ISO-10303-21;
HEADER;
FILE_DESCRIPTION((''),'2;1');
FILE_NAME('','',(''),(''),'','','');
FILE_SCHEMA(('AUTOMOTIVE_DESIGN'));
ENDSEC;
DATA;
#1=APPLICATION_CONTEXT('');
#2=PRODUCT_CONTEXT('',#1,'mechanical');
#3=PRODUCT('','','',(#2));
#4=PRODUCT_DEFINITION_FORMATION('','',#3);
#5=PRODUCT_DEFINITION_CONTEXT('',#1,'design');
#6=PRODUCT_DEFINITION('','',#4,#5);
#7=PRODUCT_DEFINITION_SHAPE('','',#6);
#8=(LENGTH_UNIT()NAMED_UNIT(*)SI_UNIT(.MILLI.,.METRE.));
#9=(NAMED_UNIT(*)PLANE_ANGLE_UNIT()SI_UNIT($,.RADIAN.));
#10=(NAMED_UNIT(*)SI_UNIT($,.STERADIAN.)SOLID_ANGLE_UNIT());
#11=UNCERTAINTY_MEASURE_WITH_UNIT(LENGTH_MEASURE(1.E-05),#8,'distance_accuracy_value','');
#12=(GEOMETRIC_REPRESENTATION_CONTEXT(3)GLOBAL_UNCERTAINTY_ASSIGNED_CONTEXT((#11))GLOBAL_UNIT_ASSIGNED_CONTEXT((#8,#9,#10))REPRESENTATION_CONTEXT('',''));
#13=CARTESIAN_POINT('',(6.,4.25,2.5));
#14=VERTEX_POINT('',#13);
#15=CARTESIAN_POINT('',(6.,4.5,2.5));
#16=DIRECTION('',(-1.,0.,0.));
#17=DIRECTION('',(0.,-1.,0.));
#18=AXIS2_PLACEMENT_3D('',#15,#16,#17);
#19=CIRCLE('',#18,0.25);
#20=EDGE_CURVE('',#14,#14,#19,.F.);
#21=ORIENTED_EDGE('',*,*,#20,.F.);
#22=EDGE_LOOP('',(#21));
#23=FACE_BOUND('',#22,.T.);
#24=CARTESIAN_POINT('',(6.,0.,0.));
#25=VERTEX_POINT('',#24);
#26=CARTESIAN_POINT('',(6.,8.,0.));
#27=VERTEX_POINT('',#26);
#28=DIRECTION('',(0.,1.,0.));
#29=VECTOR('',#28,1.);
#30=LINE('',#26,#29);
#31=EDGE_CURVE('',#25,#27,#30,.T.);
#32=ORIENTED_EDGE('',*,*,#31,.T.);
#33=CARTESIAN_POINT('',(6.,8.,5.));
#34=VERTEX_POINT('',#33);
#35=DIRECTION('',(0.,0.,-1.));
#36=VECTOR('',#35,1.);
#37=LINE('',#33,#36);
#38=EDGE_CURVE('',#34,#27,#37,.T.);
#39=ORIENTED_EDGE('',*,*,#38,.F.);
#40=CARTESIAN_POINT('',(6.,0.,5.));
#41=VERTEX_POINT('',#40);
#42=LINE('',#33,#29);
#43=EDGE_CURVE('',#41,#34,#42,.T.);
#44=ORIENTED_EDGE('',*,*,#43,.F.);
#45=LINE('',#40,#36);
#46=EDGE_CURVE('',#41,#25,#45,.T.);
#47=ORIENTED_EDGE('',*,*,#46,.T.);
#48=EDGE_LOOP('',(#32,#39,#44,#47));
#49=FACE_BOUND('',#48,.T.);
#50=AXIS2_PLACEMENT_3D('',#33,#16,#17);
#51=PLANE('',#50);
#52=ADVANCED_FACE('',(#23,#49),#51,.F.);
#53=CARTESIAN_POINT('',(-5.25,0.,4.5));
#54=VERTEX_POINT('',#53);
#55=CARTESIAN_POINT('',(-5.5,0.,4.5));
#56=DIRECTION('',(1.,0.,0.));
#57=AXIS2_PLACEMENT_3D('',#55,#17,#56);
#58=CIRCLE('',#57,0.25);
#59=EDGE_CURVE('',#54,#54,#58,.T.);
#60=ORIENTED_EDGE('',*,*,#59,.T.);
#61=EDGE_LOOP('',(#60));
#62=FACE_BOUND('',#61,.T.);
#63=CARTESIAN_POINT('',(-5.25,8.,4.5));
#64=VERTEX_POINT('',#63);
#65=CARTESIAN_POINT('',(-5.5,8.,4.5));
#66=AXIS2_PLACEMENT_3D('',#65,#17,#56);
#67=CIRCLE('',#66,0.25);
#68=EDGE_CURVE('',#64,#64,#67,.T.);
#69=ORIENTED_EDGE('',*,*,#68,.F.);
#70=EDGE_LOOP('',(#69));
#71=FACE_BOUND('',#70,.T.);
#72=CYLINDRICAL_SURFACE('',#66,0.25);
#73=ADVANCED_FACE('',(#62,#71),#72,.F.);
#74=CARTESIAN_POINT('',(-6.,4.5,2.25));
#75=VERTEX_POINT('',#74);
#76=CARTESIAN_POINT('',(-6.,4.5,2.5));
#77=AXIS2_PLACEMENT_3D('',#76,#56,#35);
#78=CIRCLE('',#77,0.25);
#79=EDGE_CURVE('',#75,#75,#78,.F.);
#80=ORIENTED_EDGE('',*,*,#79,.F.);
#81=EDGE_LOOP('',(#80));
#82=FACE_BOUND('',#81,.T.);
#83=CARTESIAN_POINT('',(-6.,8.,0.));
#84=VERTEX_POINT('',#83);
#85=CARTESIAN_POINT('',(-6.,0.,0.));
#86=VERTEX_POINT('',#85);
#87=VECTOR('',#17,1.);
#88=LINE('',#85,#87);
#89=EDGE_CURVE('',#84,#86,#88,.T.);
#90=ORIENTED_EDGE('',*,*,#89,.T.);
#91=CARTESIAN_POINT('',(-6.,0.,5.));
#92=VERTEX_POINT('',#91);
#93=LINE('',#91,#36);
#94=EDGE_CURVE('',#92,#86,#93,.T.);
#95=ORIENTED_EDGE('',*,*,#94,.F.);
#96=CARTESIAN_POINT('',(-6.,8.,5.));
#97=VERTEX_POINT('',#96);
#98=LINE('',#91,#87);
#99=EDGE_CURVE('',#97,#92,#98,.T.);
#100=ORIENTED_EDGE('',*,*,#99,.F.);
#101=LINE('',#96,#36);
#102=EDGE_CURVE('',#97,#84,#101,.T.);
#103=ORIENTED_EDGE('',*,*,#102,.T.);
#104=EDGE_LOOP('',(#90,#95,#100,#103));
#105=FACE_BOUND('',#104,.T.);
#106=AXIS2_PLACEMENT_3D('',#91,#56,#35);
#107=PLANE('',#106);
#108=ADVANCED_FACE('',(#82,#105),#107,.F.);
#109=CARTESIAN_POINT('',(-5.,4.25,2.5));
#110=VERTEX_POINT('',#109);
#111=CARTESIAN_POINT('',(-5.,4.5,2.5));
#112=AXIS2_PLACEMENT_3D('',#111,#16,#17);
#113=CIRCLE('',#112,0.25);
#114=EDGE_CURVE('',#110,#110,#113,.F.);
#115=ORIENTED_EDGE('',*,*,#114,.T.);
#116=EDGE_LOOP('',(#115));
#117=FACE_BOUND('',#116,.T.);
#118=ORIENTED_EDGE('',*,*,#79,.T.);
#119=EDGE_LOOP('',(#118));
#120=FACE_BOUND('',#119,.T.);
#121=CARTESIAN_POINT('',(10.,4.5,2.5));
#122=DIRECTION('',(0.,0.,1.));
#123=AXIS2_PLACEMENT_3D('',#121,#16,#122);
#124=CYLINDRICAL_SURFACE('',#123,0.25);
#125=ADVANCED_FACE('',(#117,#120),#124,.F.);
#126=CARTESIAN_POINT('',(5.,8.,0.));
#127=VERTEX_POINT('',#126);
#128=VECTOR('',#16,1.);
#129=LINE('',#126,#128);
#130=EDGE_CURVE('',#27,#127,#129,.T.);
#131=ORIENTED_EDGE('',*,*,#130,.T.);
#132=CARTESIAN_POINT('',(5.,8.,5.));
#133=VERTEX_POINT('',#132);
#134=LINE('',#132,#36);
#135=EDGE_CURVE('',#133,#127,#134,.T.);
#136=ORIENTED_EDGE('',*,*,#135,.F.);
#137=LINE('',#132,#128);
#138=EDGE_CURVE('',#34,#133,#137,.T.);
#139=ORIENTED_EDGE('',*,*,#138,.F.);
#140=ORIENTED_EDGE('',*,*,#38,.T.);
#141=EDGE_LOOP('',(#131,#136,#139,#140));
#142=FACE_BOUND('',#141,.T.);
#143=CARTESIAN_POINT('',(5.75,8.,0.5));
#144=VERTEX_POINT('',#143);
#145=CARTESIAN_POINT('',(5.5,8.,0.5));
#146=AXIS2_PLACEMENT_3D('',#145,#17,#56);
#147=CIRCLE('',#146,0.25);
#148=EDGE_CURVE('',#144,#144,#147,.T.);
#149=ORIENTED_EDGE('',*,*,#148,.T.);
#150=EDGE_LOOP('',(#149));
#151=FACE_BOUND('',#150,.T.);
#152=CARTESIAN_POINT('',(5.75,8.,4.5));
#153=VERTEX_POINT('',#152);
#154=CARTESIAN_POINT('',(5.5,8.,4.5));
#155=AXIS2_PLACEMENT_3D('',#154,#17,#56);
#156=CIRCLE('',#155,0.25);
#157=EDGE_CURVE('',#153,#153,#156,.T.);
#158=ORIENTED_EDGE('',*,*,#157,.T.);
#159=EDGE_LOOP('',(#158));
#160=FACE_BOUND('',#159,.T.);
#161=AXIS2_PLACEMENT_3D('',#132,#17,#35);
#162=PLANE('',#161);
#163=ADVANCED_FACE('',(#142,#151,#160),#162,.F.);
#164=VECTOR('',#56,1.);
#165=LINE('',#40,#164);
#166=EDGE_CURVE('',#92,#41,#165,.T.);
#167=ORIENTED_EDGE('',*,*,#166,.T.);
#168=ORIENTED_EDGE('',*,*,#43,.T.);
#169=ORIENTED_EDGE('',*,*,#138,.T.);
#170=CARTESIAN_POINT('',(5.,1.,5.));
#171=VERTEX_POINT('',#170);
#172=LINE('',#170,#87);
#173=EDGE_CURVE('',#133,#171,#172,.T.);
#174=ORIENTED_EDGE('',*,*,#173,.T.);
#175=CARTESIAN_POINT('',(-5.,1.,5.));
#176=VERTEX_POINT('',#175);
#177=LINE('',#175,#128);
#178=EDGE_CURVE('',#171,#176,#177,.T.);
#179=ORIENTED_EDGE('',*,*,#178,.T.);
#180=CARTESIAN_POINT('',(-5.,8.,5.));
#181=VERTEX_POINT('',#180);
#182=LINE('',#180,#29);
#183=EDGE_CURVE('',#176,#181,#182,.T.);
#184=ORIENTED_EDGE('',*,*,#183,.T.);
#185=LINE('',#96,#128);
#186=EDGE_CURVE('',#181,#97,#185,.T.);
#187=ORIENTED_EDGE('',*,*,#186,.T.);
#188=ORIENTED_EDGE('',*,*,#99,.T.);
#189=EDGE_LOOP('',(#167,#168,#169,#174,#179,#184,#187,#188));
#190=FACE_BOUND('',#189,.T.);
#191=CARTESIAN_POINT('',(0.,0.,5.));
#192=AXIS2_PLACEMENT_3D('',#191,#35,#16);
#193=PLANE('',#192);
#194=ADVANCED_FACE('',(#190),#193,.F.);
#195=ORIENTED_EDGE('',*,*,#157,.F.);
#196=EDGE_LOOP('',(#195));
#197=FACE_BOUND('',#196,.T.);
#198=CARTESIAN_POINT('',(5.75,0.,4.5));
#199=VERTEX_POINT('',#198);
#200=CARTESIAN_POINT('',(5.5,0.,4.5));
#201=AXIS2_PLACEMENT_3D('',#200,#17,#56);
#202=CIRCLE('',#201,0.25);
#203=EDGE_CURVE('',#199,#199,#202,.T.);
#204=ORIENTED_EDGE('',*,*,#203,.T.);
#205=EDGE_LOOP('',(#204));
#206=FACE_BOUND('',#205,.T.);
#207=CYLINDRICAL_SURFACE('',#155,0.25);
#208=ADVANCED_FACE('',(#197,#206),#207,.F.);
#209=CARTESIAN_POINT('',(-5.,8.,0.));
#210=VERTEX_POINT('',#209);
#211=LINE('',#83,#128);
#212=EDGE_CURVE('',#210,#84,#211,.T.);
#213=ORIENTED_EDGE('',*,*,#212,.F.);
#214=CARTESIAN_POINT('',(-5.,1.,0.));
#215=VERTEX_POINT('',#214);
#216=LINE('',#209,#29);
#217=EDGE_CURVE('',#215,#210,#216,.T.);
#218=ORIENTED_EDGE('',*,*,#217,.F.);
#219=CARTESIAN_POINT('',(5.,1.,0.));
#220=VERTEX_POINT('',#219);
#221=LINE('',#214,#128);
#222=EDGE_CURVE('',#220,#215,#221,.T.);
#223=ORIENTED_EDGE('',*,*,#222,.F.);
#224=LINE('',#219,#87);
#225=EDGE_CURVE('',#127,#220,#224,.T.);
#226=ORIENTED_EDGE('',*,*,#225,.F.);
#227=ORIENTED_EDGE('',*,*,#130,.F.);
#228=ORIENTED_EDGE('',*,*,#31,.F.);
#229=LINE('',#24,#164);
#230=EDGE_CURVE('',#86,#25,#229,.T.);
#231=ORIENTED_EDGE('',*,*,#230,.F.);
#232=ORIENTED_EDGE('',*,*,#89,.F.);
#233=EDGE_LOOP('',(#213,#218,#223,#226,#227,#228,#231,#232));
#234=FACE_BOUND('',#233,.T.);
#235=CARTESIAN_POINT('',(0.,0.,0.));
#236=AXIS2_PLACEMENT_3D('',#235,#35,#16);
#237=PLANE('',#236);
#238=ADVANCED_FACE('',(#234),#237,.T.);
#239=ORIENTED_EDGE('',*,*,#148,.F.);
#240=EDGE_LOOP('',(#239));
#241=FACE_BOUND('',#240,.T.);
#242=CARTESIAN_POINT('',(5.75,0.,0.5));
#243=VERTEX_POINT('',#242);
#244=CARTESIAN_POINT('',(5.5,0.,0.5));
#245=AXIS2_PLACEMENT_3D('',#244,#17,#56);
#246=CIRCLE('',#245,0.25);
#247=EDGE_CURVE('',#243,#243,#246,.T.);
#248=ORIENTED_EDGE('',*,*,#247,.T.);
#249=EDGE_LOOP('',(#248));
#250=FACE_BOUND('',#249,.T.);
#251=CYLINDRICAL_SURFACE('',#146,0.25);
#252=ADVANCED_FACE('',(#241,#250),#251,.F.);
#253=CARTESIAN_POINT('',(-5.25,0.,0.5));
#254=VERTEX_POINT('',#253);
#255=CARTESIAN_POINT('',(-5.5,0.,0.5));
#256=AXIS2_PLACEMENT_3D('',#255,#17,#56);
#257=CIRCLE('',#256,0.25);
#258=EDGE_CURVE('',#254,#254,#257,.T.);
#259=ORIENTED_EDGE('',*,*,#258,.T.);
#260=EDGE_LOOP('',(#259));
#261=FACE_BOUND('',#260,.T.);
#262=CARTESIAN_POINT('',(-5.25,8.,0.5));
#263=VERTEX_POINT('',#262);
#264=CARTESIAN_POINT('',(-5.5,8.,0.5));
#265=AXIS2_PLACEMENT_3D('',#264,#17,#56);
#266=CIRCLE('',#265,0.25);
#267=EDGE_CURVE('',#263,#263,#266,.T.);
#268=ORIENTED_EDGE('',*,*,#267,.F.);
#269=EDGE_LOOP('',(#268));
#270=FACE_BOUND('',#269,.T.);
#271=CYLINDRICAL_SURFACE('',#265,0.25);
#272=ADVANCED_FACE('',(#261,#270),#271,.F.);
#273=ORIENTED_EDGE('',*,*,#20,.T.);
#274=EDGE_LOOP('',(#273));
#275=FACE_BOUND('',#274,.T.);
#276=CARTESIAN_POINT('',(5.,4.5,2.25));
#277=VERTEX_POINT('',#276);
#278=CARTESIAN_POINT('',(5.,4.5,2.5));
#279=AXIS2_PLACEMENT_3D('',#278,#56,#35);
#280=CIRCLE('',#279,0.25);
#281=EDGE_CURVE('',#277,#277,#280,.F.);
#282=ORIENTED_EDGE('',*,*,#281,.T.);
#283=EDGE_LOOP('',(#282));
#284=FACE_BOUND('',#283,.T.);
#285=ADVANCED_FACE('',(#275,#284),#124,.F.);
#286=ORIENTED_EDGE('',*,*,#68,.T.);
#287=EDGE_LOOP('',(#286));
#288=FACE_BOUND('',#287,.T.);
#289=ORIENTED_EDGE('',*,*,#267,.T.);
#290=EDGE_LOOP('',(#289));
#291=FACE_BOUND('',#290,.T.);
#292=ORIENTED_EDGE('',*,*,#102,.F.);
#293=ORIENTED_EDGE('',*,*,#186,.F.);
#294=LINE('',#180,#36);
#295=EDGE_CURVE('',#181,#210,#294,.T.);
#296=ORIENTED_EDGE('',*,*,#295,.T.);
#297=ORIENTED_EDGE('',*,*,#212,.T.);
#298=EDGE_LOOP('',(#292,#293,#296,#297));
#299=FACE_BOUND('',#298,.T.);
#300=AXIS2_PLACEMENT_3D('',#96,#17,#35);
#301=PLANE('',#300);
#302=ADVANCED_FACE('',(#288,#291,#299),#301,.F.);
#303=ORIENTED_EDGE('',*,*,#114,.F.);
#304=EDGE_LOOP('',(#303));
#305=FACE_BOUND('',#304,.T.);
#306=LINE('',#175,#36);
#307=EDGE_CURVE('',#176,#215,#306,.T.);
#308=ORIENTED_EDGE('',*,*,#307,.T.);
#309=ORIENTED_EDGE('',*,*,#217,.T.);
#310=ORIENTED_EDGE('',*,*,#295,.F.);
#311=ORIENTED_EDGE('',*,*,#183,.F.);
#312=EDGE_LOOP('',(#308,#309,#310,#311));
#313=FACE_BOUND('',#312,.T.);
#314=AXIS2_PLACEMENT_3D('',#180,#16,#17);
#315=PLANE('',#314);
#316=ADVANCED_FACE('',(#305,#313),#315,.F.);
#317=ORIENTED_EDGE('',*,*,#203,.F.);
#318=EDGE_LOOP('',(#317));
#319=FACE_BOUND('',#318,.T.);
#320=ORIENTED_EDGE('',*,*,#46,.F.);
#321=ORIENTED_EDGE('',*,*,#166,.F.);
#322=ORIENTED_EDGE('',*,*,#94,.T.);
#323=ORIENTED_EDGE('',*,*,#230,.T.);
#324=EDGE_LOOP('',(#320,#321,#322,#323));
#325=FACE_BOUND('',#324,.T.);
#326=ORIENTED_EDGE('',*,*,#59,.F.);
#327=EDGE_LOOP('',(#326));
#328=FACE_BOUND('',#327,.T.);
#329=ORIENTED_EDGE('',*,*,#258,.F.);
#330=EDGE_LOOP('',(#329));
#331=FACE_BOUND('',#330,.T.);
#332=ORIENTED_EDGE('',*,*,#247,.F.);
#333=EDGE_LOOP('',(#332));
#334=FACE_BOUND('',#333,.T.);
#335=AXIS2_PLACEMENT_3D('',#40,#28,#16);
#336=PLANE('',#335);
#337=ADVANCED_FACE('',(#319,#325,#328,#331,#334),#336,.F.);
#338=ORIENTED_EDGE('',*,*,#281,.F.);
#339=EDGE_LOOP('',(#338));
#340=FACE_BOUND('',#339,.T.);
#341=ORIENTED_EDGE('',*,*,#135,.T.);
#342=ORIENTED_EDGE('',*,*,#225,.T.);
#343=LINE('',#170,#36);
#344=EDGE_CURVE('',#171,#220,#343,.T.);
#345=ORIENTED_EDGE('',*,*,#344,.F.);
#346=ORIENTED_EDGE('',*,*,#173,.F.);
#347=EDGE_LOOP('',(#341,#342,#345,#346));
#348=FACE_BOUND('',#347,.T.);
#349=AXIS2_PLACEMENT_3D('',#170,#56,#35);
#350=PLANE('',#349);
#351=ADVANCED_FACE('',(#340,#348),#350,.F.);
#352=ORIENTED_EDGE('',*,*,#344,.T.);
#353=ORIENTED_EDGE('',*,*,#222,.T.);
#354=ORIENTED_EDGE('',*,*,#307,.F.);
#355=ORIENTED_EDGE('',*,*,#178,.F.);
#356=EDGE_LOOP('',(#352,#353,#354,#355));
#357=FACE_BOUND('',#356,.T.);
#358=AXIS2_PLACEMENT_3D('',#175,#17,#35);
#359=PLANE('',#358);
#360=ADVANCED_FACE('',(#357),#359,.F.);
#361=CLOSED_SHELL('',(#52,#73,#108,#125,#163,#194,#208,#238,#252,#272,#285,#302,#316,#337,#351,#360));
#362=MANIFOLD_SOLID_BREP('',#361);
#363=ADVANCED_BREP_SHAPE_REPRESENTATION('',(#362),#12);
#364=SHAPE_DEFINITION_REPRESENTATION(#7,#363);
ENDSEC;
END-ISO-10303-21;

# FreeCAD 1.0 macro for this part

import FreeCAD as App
import Part
import Sketcher
from FreeCAD import Vector
Q = App.Units.Quantity

doc = App.newDocument("Part")
body = doc.addObject("PartDesign::Body", "Body")

sketch1 = body.newObject("Sketcher::SketchObject", "Sketch")
sketch1.AttachmentSupport = (doc.getObject("XY_Plane"), [""])
sketch1.MapMode = "FlatFace"
sketch1.addGeometry([
    Part.LineSegment(Vector(-5, 8, 0), Vector(-6, 8, 0)),
    Part.LineSegment(Vector(-6, 8, 0), Vector(-6, 0, 0)),
    Part.LineSegment(Vector(-6, 0, 0), Vector(6, 0, 0)),
    Part.LineSegment(Vector(6, 0, 0), Vector(6, 8, 0)),
    Part.LineSegment(Vector(6, 8, 0), Vector(5, 8, 0)),
    Part.LineSegment(Vector(5, 8, 0), Vector(5, 1, 0)),
    Part.LineSegment(Vector(5, 1, 0), Vector(-5, 1, 0)),
    Part.LineSegment(Vector(-5, 1, 0), Vector(-5, 8, 0)),
], False)
sketch1.addConstraint([
    Sketcher.Constraint("Coincident", 0, 2, 1, 1),
    Sketcher.Constraint("Coincident", 1, 2, 2, 1),
    Sketcher.Constraint("Coincident", 2, 2, 3, 1),
    Sketcher.Constraint("Coincident", 3, 2, 4, 1),
    Sketcher.Constraint("Coincident", 4, 2, 5, 1),
    Sketcher.Constraint("Coincident", 5, 2, 6, 1),
    Sketcher.Constraint("Coincident", 6, 2, 7, 1),
    Sketcher.Constraint("Coincident", 7, 2, 0, 1),
    Sketcher.Constraint("Horizontal", 0),
    Sketcher.Constraint("Vertical", 1),
    Sketcher.Constraint("Horizontal", 2),
    Sketcher.Constraint("Vertical", 3),
    Sketcher.Constraint("Horizontal", 4),
    Sketcher.Constraint("Vertical", 5),
    Sketcher.Constraint("Horizontal", 6),
    Sketcher.Constraint("Vertical", 7),
    Sketcher.Constraint("Symmetric", 1, 2, 2, 2, -1, 1),
    Sketcher.Constraint("Symmetric", 4, 2, 7, 2, -2),
    Sketcher.Constraint("DistanceX", 0, 2, 0, 1, Q("1 mm")),
    Sketcher.Constraint("DistanceX", 2, 1, 2, 2, Q("12 mm")),
    Sketcher.Constraint("DistanceY", 1, 2, 1, 1, Q("8 mm")),
    Sketcher.Constraint("DistanceY", 5, 2, 5, 1, Q("7 mm")),
])
pad1 = body.newObject("PartDesign::Pad", "Pad")
pad1.Profile = sketch1
pad1.Length = 5

sketch2 = body.newObject("Sketcher::SketchObject", "Sketch001")
sketch2.AttachmentSupport = (doc.getObject("XZ_Plane"), [""])
sketch2.MapMode = "FlatFace"
sketch2.addGeometry([
    Part.Circle(Vector(-5.5, 4.5, 0), Vector(0, 0, 1), 0.25),
    Part.Circle(Vector(-5.5, 0.5, 0), Vector(0, 0, 1), 0.25),
    Part.Circle(Vector(5.5, 4.5, 0), Vector(0, 0, 1), 0.25),
    Part.Circle(Vector(5.5, 0.5, 0), Vector(0, 0, 1), 0.25),
], False)
sketch2.addConstraint([
    Sketcher.Constraint("Equal", 0, 1),
    Sketcher.Constraint("Equal", 1, 2),
    Sketcher.Constraint("Equal", 2, 3),
    Sketcher.Constraint("Symmetric", 0, 3, 2, 3, -2),
    Sketcher.Constraint("Symmetric", 1, 3, 3, 3, -2),
    Sketcher.Constraint("Vertical", 0, 3, 1, 3),
    Sketcher.Constraint("Diameter", 0, Q("0.5 mm")),
    Sketcher.Constraint("DistanceY", 1, 3, 0, 3, Q("4 mm")),
    Sketcher.Constraint("DistanceX", 0, 3, 2, 3, Q("11 mm")),
    Sketcher.Constraint("DistanceY", -1, 1, 0, 3, Q("4.5 mm")),
])
pocket1 = body.newObject("PartDesign::Pocket", "Pocket")
pocket1.Profile = sketch2
pocket1.Type = "ThroughAll"

sketch3 = body.newObject("Sketcher::SketchObject", "Sketch002")
sketch3.AttachmentSupport = (doc.getObject("YZ_Plane"), [""])
sketch3.MapMode = "FlatFace"
sketch3.addGeometry(Part.Circle(Vector(4.5, 2.5, 0), Vector(0, 0, 1), 0.25), False)
sketch3.addConstraint([
    Sketcher.Constraint("Diameter", 0, Q("0.5 mm")),
    Sketcher.Constraint("DistanceX", -1, 1, 0, 3, Q("4.5 mm")),
    Sketcher.Constraint("DistanceY", -1, 1, 0, 3, Q("2.5 mm")),
])
pocket2 = body.newObject("PartDesign::Pocket", "Pocket001")
pocket2.Profile = sketch3
pocket2.Type = "ThroughAll"
pocket2.Midplane = True

doc.recompute()
